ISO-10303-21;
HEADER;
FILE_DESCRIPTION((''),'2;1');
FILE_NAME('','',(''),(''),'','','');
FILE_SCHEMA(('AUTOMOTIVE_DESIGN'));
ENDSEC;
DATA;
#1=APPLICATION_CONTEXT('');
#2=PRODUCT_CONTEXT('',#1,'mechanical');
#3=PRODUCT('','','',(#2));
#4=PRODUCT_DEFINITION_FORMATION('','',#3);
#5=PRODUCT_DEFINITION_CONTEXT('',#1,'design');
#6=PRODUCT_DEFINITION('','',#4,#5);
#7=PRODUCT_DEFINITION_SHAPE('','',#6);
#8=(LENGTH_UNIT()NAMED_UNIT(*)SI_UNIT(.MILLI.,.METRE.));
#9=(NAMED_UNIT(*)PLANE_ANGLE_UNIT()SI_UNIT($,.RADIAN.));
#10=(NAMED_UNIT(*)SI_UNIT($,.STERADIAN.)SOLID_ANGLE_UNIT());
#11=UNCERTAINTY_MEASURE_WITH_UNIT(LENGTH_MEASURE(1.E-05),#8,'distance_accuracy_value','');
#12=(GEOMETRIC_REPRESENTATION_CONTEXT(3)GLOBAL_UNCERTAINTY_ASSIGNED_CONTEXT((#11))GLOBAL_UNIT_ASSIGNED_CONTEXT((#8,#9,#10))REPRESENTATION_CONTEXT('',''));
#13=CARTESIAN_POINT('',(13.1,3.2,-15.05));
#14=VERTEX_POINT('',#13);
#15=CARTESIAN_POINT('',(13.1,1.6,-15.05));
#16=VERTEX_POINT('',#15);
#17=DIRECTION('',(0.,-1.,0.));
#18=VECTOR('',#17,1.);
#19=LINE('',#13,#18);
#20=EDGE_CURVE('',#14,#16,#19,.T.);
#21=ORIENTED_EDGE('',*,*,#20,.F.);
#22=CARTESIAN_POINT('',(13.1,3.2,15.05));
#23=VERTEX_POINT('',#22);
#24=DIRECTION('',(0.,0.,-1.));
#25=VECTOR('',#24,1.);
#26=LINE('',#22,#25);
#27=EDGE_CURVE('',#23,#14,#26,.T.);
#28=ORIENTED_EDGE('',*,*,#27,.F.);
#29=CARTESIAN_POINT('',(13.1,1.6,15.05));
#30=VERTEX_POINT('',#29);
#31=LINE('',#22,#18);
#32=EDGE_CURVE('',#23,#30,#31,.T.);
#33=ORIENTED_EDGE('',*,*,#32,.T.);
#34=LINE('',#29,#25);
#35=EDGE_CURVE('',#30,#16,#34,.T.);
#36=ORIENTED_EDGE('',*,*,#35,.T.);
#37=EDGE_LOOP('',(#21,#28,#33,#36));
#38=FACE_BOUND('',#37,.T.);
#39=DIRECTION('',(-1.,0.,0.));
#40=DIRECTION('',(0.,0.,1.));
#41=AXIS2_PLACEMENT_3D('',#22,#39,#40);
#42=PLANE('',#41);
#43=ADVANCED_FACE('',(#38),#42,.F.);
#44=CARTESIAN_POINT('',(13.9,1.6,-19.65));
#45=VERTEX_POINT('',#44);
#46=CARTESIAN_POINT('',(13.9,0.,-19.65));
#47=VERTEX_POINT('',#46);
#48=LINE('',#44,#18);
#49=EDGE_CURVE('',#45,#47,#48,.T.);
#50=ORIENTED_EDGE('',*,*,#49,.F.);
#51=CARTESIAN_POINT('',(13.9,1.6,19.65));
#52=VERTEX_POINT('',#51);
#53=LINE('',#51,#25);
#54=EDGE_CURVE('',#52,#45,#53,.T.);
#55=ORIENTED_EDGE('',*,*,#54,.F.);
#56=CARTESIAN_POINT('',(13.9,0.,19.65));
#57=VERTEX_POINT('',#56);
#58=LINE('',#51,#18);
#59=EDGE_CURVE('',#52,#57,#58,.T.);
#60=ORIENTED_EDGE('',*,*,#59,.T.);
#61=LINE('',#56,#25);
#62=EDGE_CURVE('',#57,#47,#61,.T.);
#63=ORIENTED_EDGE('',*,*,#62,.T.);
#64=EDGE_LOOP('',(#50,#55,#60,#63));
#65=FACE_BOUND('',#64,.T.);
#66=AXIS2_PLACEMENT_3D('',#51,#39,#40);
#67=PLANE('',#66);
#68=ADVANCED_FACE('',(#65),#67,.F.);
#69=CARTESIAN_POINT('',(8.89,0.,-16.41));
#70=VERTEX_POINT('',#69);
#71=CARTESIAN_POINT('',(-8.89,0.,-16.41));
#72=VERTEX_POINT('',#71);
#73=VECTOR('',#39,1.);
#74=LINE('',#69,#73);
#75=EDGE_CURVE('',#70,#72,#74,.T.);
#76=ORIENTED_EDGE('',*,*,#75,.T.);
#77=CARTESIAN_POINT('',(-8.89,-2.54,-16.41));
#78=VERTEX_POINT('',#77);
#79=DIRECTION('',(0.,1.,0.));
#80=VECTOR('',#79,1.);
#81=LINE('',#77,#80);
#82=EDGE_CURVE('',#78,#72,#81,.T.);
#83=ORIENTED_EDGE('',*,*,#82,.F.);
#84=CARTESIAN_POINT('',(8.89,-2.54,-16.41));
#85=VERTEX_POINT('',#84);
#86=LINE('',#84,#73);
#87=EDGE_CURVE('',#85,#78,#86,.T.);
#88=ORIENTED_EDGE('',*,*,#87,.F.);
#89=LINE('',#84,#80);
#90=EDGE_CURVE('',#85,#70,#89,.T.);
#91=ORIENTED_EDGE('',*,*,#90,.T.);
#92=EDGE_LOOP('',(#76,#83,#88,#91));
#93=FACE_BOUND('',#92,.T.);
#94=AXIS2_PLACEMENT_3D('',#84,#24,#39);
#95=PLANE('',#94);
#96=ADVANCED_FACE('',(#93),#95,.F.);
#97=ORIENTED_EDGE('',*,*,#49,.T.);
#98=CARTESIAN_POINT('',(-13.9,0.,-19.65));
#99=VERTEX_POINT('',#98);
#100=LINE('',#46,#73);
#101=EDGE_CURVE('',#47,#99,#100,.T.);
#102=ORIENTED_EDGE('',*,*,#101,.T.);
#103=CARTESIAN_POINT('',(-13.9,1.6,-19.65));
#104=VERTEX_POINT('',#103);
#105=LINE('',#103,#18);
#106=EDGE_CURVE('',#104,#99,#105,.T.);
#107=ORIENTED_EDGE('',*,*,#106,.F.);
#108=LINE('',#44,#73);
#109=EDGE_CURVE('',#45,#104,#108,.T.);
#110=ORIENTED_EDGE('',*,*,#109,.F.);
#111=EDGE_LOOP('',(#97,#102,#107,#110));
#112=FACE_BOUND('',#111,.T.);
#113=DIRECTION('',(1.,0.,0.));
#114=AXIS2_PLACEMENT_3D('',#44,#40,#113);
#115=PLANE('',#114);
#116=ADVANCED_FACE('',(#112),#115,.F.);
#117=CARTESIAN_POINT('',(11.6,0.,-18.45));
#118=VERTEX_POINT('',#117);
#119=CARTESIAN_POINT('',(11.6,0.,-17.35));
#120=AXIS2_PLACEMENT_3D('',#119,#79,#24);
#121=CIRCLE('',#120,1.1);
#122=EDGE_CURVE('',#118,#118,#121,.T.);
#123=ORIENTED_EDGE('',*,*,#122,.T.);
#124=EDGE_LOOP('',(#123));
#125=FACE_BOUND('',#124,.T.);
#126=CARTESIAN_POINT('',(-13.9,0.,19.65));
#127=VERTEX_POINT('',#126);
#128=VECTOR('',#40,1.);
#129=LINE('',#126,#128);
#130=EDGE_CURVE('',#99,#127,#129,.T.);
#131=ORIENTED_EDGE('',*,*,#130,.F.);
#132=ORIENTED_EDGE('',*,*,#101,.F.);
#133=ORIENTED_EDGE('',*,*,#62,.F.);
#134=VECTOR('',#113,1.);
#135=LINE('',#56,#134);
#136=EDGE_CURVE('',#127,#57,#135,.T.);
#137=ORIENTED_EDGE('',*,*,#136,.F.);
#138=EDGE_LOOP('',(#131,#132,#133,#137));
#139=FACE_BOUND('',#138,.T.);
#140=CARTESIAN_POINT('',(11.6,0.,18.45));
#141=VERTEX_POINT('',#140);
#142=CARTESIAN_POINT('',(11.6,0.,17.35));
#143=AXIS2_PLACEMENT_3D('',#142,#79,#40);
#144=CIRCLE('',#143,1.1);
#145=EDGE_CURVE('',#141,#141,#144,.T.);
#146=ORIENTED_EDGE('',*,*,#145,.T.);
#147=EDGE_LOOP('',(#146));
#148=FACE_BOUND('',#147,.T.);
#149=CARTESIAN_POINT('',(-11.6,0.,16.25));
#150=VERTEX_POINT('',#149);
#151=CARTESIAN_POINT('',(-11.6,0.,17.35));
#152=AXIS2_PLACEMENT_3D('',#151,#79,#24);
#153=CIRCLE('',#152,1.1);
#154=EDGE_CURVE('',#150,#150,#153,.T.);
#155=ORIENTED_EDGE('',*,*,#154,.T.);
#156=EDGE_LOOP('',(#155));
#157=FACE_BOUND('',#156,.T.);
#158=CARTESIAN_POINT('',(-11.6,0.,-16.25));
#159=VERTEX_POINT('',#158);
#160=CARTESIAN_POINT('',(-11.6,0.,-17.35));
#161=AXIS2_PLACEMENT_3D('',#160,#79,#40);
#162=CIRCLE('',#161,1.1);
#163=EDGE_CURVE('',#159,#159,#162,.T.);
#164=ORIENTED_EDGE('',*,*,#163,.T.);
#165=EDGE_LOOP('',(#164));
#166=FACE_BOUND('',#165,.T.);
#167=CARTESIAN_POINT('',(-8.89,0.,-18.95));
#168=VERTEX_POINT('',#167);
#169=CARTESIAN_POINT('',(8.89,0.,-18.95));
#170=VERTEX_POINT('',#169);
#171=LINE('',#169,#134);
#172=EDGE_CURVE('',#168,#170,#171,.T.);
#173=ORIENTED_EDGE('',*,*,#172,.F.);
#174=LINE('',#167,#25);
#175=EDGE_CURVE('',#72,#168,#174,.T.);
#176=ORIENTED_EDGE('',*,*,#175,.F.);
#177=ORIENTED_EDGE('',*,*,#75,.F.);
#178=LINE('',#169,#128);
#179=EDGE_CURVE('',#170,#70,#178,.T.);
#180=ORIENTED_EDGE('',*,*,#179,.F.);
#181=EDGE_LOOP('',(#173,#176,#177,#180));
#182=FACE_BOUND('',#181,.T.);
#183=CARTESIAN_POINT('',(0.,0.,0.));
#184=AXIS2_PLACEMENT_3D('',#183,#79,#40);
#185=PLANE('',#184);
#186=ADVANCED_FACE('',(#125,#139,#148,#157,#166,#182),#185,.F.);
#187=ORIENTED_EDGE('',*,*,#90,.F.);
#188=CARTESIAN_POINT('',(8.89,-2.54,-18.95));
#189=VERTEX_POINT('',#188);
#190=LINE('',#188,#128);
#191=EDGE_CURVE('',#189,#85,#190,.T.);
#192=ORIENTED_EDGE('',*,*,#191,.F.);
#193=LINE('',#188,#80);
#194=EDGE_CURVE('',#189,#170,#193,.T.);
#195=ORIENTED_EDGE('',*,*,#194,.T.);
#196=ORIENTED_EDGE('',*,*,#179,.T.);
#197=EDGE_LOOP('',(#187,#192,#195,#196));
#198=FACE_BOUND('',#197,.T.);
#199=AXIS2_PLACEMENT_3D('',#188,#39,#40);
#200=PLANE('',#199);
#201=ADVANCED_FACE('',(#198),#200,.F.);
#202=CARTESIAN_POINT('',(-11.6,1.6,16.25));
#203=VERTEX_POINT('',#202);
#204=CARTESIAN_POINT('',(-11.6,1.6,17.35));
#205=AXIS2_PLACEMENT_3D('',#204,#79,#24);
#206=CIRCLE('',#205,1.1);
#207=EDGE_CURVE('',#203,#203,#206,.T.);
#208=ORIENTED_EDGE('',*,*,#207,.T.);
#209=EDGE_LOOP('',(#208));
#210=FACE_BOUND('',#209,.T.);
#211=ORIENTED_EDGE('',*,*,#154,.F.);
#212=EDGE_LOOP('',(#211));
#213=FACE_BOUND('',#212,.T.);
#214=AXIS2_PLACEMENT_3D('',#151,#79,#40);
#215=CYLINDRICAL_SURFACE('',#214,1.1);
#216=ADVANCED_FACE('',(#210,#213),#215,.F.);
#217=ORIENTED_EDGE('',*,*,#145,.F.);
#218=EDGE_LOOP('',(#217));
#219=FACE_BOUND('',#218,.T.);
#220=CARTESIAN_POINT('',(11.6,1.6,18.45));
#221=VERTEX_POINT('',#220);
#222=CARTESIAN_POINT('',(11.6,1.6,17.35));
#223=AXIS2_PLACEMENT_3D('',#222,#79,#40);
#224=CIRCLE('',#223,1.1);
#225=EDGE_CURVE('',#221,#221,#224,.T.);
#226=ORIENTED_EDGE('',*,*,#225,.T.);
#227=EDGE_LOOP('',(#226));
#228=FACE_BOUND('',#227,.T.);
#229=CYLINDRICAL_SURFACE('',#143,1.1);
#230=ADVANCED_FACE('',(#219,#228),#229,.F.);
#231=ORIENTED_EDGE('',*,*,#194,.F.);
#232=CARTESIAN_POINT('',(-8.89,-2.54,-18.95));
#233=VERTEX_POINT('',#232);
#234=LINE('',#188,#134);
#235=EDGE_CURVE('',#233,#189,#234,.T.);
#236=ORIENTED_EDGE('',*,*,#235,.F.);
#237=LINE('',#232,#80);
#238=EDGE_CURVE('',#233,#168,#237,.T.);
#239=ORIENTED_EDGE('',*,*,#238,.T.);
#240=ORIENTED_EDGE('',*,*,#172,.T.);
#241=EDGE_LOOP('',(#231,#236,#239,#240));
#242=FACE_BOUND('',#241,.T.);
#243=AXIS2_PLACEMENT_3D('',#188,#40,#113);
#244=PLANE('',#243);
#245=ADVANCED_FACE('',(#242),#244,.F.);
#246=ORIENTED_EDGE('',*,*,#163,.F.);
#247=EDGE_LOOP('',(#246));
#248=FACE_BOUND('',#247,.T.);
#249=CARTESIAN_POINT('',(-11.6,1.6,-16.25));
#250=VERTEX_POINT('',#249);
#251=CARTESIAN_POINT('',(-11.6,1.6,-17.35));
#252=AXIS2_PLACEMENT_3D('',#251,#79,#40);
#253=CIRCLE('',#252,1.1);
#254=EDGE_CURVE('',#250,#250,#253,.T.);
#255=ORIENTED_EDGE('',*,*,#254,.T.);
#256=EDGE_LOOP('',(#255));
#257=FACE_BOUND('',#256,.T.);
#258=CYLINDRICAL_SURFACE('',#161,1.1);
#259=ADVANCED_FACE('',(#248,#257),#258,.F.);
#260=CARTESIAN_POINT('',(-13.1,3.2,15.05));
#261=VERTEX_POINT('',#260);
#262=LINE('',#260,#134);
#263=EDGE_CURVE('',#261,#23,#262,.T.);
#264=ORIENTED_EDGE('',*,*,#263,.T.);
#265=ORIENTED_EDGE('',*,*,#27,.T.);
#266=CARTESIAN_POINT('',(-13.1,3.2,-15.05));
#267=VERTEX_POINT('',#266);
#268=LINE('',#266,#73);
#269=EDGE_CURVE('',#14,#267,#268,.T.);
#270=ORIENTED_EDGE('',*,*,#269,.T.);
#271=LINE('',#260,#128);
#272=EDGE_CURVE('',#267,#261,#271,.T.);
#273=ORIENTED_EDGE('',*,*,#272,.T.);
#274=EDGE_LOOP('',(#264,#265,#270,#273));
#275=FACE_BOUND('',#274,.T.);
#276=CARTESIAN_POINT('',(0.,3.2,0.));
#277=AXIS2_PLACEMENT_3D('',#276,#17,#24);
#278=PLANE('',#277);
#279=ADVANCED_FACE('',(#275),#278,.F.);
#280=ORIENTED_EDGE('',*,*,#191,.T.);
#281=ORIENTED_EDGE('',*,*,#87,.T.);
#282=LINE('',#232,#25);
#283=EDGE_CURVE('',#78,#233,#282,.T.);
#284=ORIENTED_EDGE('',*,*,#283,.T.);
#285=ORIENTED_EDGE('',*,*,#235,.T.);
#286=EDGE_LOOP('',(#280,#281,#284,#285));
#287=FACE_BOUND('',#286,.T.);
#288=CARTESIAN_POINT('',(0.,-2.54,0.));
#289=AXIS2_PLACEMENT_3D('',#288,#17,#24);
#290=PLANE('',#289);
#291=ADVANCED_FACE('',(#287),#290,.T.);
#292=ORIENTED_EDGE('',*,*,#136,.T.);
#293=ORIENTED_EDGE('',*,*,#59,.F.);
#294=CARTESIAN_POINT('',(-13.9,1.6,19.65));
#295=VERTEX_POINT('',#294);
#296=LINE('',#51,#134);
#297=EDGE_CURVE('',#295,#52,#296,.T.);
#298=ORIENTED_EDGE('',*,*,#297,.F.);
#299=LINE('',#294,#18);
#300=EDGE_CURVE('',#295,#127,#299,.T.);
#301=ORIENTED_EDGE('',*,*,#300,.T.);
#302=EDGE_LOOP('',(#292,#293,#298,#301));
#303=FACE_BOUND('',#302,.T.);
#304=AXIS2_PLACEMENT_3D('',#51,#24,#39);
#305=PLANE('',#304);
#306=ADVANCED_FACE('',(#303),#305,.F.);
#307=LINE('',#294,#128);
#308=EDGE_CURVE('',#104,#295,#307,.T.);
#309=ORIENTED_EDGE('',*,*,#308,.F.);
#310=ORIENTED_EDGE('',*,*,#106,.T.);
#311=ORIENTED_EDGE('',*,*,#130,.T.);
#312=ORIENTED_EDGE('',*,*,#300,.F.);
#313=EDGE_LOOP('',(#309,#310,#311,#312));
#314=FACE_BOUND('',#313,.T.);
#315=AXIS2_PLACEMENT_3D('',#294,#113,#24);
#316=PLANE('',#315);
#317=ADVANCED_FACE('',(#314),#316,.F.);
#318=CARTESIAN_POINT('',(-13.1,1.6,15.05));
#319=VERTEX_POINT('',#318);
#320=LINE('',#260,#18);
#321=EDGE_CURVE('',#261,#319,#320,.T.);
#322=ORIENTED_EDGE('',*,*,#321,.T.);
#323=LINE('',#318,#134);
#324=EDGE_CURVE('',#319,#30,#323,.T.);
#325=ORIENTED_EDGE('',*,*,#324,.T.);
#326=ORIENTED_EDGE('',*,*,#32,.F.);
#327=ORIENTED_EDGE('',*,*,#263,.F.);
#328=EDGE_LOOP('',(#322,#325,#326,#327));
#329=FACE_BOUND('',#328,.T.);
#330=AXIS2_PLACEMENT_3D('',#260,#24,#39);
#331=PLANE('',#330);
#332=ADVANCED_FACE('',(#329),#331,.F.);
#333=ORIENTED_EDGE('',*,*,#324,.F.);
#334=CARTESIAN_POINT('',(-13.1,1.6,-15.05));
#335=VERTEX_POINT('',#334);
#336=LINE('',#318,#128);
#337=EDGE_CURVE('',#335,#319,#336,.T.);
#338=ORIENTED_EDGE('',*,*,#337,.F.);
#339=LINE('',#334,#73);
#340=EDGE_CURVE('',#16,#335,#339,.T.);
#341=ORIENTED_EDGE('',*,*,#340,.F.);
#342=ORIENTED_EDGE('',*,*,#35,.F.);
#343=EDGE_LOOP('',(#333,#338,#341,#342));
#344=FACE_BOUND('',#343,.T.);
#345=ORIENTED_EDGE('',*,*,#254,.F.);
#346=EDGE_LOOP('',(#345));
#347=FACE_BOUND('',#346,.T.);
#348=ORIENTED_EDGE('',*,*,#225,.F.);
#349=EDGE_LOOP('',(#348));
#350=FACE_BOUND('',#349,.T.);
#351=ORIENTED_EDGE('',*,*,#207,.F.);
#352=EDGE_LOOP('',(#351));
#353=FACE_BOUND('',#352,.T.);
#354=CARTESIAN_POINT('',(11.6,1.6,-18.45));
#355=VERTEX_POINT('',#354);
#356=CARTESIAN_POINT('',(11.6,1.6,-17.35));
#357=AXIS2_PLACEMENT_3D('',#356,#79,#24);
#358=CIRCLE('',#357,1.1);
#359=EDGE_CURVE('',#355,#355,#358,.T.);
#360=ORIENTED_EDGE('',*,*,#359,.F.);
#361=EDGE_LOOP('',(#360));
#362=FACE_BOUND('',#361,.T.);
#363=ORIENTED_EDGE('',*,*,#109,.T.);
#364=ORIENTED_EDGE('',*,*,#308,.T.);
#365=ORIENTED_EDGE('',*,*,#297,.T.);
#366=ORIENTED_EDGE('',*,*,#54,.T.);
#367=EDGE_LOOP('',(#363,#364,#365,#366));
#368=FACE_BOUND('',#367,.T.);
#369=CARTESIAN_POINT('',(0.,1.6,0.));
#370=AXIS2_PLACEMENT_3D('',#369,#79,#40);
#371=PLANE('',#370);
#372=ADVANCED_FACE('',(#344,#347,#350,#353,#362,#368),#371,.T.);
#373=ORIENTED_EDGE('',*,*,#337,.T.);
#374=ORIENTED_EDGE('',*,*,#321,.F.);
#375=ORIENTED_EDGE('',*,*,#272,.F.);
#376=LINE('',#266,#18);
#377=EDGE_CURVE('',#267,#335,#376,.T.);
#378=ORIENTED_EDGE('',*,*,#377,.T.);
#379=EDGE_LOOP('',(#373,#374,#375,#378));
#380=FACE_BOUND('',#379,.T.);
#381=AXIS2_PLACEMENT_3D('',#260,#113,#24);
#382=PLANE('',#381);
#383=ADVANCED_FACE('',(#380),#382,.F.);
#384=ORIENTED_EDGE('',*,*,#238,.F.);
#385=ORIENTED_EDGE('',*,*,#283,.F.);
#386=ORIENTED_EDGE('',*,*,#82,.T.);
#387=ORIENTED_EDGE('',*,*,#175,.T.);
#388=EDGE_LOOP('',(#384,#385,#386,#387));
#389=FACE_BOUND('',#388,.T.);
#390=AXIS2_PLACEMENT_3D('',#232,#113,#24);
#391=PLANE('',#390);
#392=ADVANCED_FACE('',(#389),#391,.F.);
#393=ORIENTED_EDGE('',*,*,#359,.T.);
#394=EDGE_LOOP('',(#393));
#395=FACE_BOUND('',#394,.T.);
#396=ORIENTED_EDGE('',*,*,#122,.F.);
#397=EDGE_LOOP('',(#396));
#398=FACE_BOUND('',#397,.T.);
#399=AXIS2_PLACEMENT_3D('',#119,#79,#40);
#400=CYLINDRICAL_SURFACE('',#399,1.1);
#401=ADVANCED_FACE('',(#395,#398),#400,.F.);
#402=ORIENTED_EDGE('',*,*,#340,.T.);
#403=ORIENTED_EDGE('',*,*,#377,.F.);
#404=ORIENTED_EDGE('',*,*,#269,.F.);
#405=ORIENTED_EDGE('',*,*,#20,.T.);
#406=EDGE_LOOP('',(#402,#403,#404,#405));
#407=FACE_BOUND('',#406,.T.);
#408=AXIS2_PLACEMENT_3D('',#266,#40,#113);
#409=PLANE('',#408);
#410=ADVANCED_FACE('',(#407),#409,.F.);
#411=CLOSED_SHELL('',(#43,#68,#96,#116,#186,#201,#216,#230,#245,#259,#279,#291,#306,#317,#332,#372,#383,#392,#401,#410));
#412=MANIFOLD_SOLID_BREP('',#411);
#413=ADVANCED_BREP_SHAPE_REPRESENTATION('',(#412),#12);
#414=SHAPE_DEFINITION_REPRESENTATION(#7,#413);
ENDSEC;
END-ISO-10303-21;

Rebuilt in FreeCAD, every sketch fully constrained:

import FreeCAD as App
import Part
import Sketcher
from FreeCAD import Vector
Q = App.Units.Quantity


def add_polygon(sketch, points):
    """Adds a closed chain of lines whose ends are joined by coincident constraints."""
    first, n = sketch.GeometryCount, len(points)
    for a, b in zip(points, points[1:] + points[:1]):
        sketch.addGeometry(Part.LineSegment(App.Vector(*a, 0), App.Vector(*b, 0)), False)
    for i in range(n):
        sketch.addConstraint(Sketcher.Constraint("Coincident", first + i, 2, first + (i + 1) % n, 1))

doc = App.newDocument("Part")
body = doc.addObject("PartDesign::Body", "Body")

sketch1 = body.newObject("Sketcher::SketchObject", "Sketch")
sketch1.AttachmentSupport = (doc.getObject("XZ_Plane"), [""])
sketch1.MapMode = "FlatFace"
add_polygon(sketch1, [(-14, -20), (-14, 20), (14, 20), (14, -20)])
sketch1.addConstraint(Sketcher.Constraint("Vertical", 0))
sketch1.addConstraint(Sketcher.Constraint("Horizontal", 1))
sketch1.addConstraint(Sketcher.Constraint("Vertical", 2))
sketch1.addConstraint(Sketcher.Constraint("Horizontal", 3))
sketch1.addConstraint(Sketcher.Constraint("Symmetric", 0, 2, 2, 2, -1, 1))
sketch1.addConstraint(Sketcher.Constraint("DistanceX", 1, 1, 1, 2, Q("27.8 mm")))
sketch1.addConstraint(Sketcher.Constraint("DistanceY", 0, 1, 0, 2, Q("39.3 mm")))
pad1 = body.newObject("PartDesign::Pad", "Pad")
pad1.Profile = sketch1
pad1.Length = 1.6
pad1.Reversed = True

sketch2 = body.newObject("Sketcher::SketchObject", "Sketch001")
sketch2.AttachmentSupport = (doc.getObject("XZ_Plane"), [""])
sketch2.MapMode = "FlatFace"
sketch2.AttachmentOffset = App.Placement(Vector(0, 0, -1.6), App.Rotation())
sketch2.addGeometry(Part.Circle(Vector(-11.6, -17.4, 0), Vector(0, 0, 1), 1.1), False)
sketch2.addGeometry(Part.Circle(Vector(11.6, -17.4, 0), Vector(0, 0, 1), 1.1), False)
sketch2.addGeometry(Part.Circle(Vector(-11.6, 17.4, 0), Vector(0, 0, 1), 1.1), False)
sketch2.addGeometry(Part.Circle(Vector(11.6, 17.4, 0), Vector(0, 0, 1), 1.1), False)
sketch2.addConstraint(Sketcher.Constraint("Equal", 0, 1))
sketch2.addConstraint(Sketcher.Constraint("Equal", 1, 2))
sketch2.addConstraint(Sketcher.Constraint("Equal", 2, 3))
sketch2.addConstraint(Sketcher.Constraint("Symmetric", 1, 3, 2, 3, -1, 1))
sketch2.addConstraint(Sketcher.Constraint("Symmetric", 0, 3, 3, 3, -1, 1))
sketch2.addConstraint(Sketcher.Constraint("Symmetric", 0, 3, 1, 3, -2))
sketch2.addConstraint(Sketcher.Constraint("Diameter", 0, Q("2.2 mm")))
sketch2.addConstraint(Sketcher.Constraint("DistanceX", 0, 3, -1, 1, Q("11.6 mm")))
sketch2.addConstraint(Sketcher.Constraint("DistanceY", 0, 3, 2, 3, Q("34.7 mm")))
pocket1 = body.newObject("PartDesign::Pocket", "Pocket")
pocket1.Profile = sketch2
pocket1.Length = 1.6
pocket1.Reversed = True

sketch3 = body.newObject("Sketcher::SketchObject", "Sketch002")
sketch3.AttachmentSupport = (doc.getObject("XZ_Plane"), [""])
sketch3.MapMode = "FlatFace"
sketch3.AttachmentOffset = App.Placement(Vector(0, 0, -1.6), App.Rotation())
add_polygon(sketch3, [(-13, -15), (-13, 15), (13, 15), (13, -15)])
sketch3.addConstraint(Sketcher.Constraint("Vertical", 0))
sketch3.addConstraint(Sketcher.Constraint("Horizontal", 1))
sketch3.addConstraint(Sketcher.Constraint("Vertical", 2))
sketch3.addConstraint(Sketcher.Constraint("Horizontal", 3))
sketch3.addConstraint(Sketcher.Constraint("Symmetric", 0, 2, 2, 2, -1, 1))
sketch3.addConstraint(Sketcher.Constraint("DistanceX", 1, 1, 1, 2, Q("26.2 mm")))
sketch3.addConstraint(Sketcher.Constraint("DistanceY", 0, 1, 0, 2, Q("30.1 mm")))
pad2 = body.newObject("PartDesign::Pad", "Pad001")
pad2.Profile = sketch3
pad2.Length = 1.6
pad2.Reversed = True

sketch4 = body.newObject("Sketcher::SketchObject", "Sketch003")
sketch4.AttachmentSupport = (doc.getObject("XZ_Plane"), [""])
sketch4.MapMode = "FlatFace"
add_polygon(sketch4, [(-8.9, -16.4), (-8.9, -18.9), (8.9, -18.9), (8.9, -16.4)])
sketch4.addConstraint(Sketcher.Constraint("Vertical", 0))
sketch4.addConstraint(Sketcher.Constraint("Horizontal", 1))
sketch4.addConstraint(Sketcher.Constraint("Vertical", 2))
sketch4.addConstraint(Sketcher.Constraint("Horizontal", 3))
sketch4.addConstraint(Sketcher.Constraint("DistanceX", 1, 1, 1, 2, Q("17.78 mm")))
sketch4.addConstraint(Sketcher.Constraint("DistanceY", 0, 2, 0, 1, Q("2.54 mm")))
sketch4.addConstraint(Sketcher.Constraint("DistanceX", 0, 2, -1, 1, Q("8.89 mm")))
sketch4.addConstraint(Sketcher.Constraint("DistanceY", 0, 2, -1, 1, Q("18.95 mm")))
pad3 = body.newObject("PartDesign::Pad", "Pad002")
pad3.Profile = sketch4
pad3.Length = 2.54

doc.recompute()
